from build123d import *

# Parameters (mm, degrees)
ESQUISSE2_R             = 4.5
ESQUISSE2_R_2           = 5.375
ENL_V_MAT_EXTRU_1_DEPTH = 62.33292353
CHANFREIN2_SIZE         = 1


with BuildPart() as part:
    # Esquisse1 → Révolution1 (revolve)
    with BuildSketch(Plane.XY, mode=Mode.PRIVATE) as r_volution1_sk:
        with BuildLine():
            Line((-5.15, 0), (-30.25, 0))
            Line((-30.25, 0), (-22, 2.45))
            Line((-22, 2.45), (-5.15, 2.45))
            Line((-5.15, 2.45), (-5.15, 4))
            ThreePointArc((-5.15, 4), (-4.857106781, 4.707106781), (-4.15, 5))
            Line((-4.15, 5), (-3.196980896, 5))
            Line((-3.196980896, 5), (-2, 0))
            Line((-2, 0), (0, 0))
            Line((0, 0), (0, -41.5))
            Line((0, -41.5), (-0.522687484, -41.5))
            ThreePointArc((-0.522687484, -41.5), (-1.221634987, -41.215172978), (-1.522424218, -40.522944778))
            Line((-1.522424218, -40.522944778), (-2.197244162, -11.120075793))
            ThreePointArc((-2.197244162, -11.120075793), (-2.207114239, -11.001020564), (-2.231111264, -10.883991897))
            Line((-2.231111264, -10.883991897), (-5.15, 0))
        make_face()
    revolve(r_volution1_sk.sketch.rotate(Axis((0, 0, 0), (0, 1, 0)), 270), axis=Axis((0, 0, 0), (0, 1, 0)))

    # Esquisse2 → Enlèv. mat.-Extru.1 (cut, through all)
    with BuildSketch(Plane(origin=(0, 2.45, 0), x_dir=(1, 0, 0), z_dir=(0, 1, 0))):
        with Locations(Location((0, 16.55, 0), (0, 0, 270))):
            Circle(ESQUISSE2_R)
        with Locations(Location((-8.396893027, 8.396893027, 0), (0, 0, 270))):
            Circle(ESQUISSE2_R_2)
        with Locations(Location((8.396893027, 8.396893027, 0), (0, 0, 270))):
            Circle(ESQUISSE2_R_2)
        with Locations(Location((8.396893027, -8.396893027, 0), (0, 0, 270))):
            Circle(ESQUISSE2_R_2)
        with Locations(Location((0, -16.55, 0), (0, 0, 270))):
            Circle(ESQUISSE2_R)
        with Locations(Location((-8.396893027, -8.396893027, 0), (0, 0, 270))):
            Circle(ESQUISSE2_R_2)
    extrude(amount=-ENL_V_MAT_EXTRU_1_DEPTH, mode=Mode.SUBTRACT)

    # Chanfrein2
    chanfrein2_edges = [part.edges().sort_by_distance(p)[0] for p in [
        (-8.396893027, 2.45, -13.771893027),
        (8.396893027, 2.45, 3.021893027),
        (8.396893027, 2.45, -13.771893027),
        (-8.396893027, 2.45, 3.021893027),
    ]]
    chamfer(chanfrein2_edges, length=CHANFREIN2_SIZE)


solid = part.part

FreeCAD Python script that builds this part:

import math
import FreeCAD as App
import Part
import Sketcher
from FreeCAD import Vector


def edges_at(feature, points):
    """Names of the edges that pass closest to the given points."""
    edges = feature.Shape.Edges
    near = lambda p: min(range(len(edges)), key=lambda i: edges[i].distToShape(Part.Vertex(*p))[0])
    return sorted({f"Edge{near(p) + 1}" for p in points})

doc = App.newDocument("Part")
body = doc.addObject("PartDesign::Body", "Body")

sketch1 = body.newObject("Sketcher::SketchObject", "Sketch")
sketch1.AttachmentSupport = (doc.getObject("XY_Plane"), [""])
sketch1.MapMode = "FlatFace"
sketch1.addGeometry([
    Part.LineSegment(Vector(-30.25, 0, 0), Vector(-5.15, 0, 0)),
    Part.LineSegment(Vector(-5.15, 0, 0), Vector(-2.231111, -10.883992, 0)),
    Part.ArcOfCircle(Part.Circle(Vector(-3.196981, -11.143021, 0), Vector(0, 0, 1), 1), math.radians(1.314754), math.radians(15.012435)),
    Part.LineSegment(Vector(-2.197244, -11.120076, 0), Vector(-1.522424, -40.522945, 0)),
    Part.ArcOfCircle(Part.Circle(Vector(-0.522687, -40.5, 0), Vector(0, 0, 1), 1), math.radians(-178.685246), math.radians(-90)),
    Part.LineSegment(Vector(-0.522687, -41.5, 0), Vector(0, -41.5, 0)),
    Part.LineSegment(Vector(0, -41.5, 0), Vector(0, 0, 0)),
    Part.LineSegment(Vector(0, 0, 0), Vector(-2, 0, 0)),
    Part.LineSegment(Vector(-2, 0, 0), Vector(-3.196981, 5, 0)),
    Part.LineSegment(Vector(-3.196981, 5, 0), Vector(-4.15, 5, 0)),
    Part.ArcOfCircle(Part.Circle(Vector(-4.15, 4, 0), Vector(0, 0, 1), 1), math.radians(90), math.radians(180)),
    Part.LineSegment(Vector(-5.15, 4, 0), Vector(-5.15, 2.45, 0)),
    Part.LineSegment(Vector(-5.15, 2.45, 0), Vector(-22, 2.45, 0)),
    Part.LineSegment(Vector(-22, 2.45, 0), Vector(-30.25, 0, 0)),
], False)
sketch1.addConstraint([
    Sketcher.Constraint("Coincident", 0, 2, 1, 1),
    Sketcher.Constraint("Tangent", 1, 2, 2, 2),
    Sketcher.Constraint("Tangent", 2, 1, 3, 1),
    Sketcher.Constraint("Tangent", 3, 2, 4, 1),
    Sketcher.Constraint("Tangent", 4, 2, 5, 1),
    Sketcher.Constraint("Coincident", 5, 2, 6, 1),
    Sketcher.Constraint("Coincident", 6, 2, 7, 1),
    Sketcher.Constraint("Coincident", 7, 2, 8, 1),
    Sketcher.Constraint("Coincident", 8, 2, 9, 1),
    Sketcher.Constraint("Tangent", 9, 2, 10, 1),
    Sketcher.Constraint("Tangent", 10, 2, 11, 1),
    Sketcher.Constraint("Coincident", 11, 2, 12, 1),
    Sketcher.Constraint("Coincident", 12, 2, 13, 1),
    Sketcher.Constraint("Coincident", 13, 2, 0, 1),
    Sketcher.Constraint("Horizontal", 0),
    Sketcher.Constraint("Horizontal", 5),
    Sketcher.Constraint("Vertical", 6),
    Sketcher.Constraint("Horizontal", 7),
    Sketcher.Constraint("Horizontal", 9),
    Sketcher.Constraint("Vertical", 11),
    Sketcher.Constraint("Horizontal", 12),
    Sketcher.Constraint("Coincident", 6, 2, -1, 1),
    Sketcher.Constraint("Equal", 2, 4),
    Sketcher.Constraint("Equal", 4, 10),
    Sketcher.Constraint("PointOnObject", 0, 2, -1),
    Sketcher.Constraint("Vertical", 2, 3, 8, 2),
    Sketcher.Constraint("Vertical", 0, 2, 10, 2),
    Sketcher.Constraint("Radius", 2, 1.0),
    Sketcher.Constraint("DistanceX", 7, 2, 7, 1, 2.0),
    Sketcher.Constraint("DistanceX", 0, 1, 0, 2, 25.1),
    Sketcher.Constraint("DistanceY", 6, 1, 6, 2, 41.5),
    Sketcher.Constraint("DistanceY", -1, 1, 10, 3, 4.0),
    Sketcher.Constraint("DistanceX", 12, 2, -1, 1, 22.0),
    Sketcher.Constraint("DistanceX", 12, 2, 12, 1, 16.85),
    Sketcher.Constraint("DistanceY", 11, 2, 11, 1, 1.55),
    Sketcher.Constraint("DistanceX", 9, 2, 9, 1, 0.953019),
    Sketcher.Constraint("Distance", 3, 29.410612),
    Sketcher.Constraint("DistanceX", 5, 1, 5, 2, 0.522687),
])
revolution = body.newObject("PartDesign::Revolution", "Revolution")
revolution.Profile = sketch1
revolution.ReferenceAxis = (sketch1, ["V_Axis"])
revolution.Angle = 360

sketch2 = body.newObject("Sketcher::SketchObject", "Sketch001")
sketch2.AttachmentSupport = (doc.getObject("XZ_Plane"), [""])
sketch2.MapMode = "FlatFace"
sketch2.AttachmentOffset = App.Placement(Vector(0, 0, -2.45), App.Rotation())
sketch2.addGeometry([
    Part.Circle(Vector(0, -16.55, 0), Vector(0, 0, 1), 4.5),
    Part.Circle(Vector(-8.396893, -8.396893, 0), Vector(0, 0, 1), 5.375),
    Part.Circle(Vector(8.396893, -8.396893, 0), Vector(0, 0, 1), 5.375),
    Part.Circle(Vector(8.396893, 8.396893, 0), Vector(0, 0, 1), 5.375),
    Part.Circle(Vector(0, 16.55, 0), Vector(0, 0, 1), 4.5),
    Part.Circle(Vector(-8.396893, 8.396893, 0), Vector(0, 0, 1), 5.375),
], False)
sketch2.addConstraint([
    Sketcher.Constraint("Equal", 1, 2),
    Sketcher.Constraint("Equal", 2, 3),
    Sketcher.Constraint("Equal", 0, 4),
    Sketcher.Constraint("Equal", 3, 5),
    Sketcher.Constraint("Symmetric", 1, 3, 3, 3, -1, 1),
    Sketcher.Constraint("Symmetric", 0, 3, 4, 3, -1, 1),
    Sketcher.Constraint("Symmetric", 2, 3, 5, 3, -1, 1),
    Sketcher.Constraint("Symmetric", 1, 3, 2, 3, -2),
    Sketcher.Constraint("PointOnObject", 0, 3, -2),
    Sketcher.Constraint("Diameter", 0, 9.0),
    Sketcher.Constraint("Diameter", 1, 10.75),
    Sketcher.Constraint("DistanceY", 0, 3, 4, 3, 33.1),
    Sketcher.Constraint("DistanceX", 1, 3, -1, 1, 8.396893),
    Sketcher.Constraint("DistanceY", 1, 3, -1, 1, 8.396893),
])
pocket1 = body.newObject("PartDesign::Pocket", "Pocket")
pocket1.Profile = sketch2
pocket1.Type = "ThroughAll"
pocket1.Reversed = True
doc.recompute()

chamfer = body.newObject("PartDesign::Chamfer", "Chamfer")
chamfer.Base = (pocket1, edges_at(pocket1, [
    (-8.397, 2.45, -13.772),
    (8.397, 2.45, 3.022),
    (8.397, 2.45, -13.772),
    (-8.397, 2.45, 3.022),
]))
chamfer.Size = 1

doc.recompute()
